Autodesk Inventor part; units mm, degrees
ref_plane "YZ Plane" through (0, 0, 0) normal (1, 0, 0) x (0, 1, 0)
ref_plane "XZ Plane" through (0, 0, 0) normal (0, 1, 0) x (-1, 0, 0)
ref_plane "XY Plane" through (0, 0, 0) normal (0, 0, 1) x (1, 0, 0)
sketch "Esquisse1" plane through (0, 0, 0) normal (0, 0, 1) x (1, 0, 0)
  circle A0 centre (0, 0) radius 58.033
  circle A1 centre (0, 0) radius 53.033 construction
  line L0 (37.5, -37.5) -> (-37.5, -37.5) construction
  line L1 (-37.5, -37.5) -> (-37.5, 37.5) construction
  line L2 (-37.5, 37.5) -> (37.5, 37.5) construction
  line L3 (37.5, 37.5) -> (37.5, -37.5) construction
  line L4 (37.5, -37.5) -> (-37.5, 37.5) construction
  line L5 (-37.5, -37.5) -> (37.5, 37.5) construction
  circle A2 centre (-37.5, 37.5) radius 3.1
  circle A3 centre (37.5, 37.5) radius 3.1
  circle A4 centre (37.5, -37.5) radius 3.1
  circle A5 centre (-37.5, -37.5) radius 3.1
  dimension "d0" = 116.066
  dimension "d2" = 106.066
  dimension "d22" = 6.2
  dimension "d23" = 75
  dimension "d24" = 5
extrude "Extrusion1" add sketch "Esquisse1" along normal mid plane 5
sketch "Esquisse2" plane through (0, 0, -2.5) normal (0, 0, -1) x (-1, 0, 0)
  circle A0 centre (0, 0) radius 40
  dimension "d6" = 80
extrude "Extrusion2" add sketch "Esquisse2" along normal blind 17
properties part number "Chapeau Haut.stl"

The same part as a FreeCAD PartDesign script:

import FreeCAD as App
import Part
import Sketcher
from FreeCAD import Vector

doc = App.newDocument("Part")
params = doc.addObject("Spreadsheet::Sheet", "Params")
for row, (alias, value) in enumerate([
    ("sketch1_diameter", "6.2 mm"),
    ("pad1_length", "5 mm"),
    ("sketch2_diameter", "80 mm"),
    ("pad2_length", "17 mm"),
], start=1):
    params.set(f"A{row}", alias)
    params.set(f"B{row}", "=" + value)
    params.setAlias(f"B{row}", alias)

body = doc.addObject("PartDesign::Body", "Body")

# Sketch on XY plane
sketch1 = body.newObject("Sketcher::SketchObject", "Sketch")
sketch1.AttachmentSupport = (doc.getObject("XY_Plane"), [""])
sketch1.MapMode = "FlatFace"
sketch1.addGeometry(Part.Circle(Vector(0, 0, 0), Vector(0, 0, 1), 58), False)
sketch1.addGeometry(Part.Circle(Vector(-37.5, -37.5, 0), Vector(0, 0, 1), 3.1), False)
sketch1.addGeometry(Part.Circle(Vector(37.5, -37.5, 0), Vector(0, 0, 1), 3.1), False)
sketch1.addGeometry(Part.Circle(Vector(-37.5, 37.5, 0), Vector(0, 0, 1), 3.1), False)
sketch1.addGeometry(Part.Circle(Vector(37.5, 37.5, 0), Vector(0, 0, 1), 3.1), False)
sketch1.addConstraint(Sketcher.Constraint("Coincident", 0, 3, -1, 1))
sketch1.addConstraint(Sketcher.Constraint("Equal", 1, 2))
sketch1.addConstraint(Sketcher.Constraint("Equal", 2, 3))
sketch1.addConstraint(Sketcher.Constraint("Equal", 3, 4))
sketch1.addConstraint(Sketcher.Constraint("Symmetric", 2, 3, 3, 3, -1, 1))
sketch1.addConstraint(Sketcher.Constraint("Symmetric", 1, 3, 4, 3, -1, 1))
sketch1.addConstraint(Sketcher.Constraint("Symmetric", 1, 3, 2, 3, -2))
sketch1.addConstraint(Sketcher.Constraint("Diameter", 1, 6.2))
sketch1.addConstraint(Sketcher.Constraint("Diameter", 0, 116.066))
sketch1.addConstraint(Sketcher.Constraint("DistanceX", 1, 3, 2, 3, 75.0))
sketch1.addConstraint(Sketcher.Constraint("DistanceY", 1, 3, 3, 3, 75.0))
sketch1.setExpression("Constraints[7]", "Params.sketch1_diameter")
pad1 = body.newObject("PartDesign::Pad", "Pad")
pad1.Profile = sketch1
pad1.setExpression("Length", "Params.pad1_length")
pad1.Midplane = True

# Sketch on XY plane
sketch2 = body.newObject("Sketcher::SketchObject", "Sketch001")
sketch2.AttachmentSupport = (doc.getObject("XY_Plane"), [""])
sketch2.MapMode = "FlatFace"
sketch2.AttachmentOffset = App.Placement(Vector(0, 0, -2.5), App.Rotation())
sketch2.addGeometry(Part.Circle(Vector(0, 0, 0), Vector(0, 0, 1), 40), False)
sketch2.addConstraint(Sketcher.Constraint("Coincident", 0, 3, -1, 1))
sketch2.addConstraint(Sketcher.Constraint("Diameter", 0, 80.0))
sketch2.setExpression("Constraints[1]", "Params.sketch2_diameter")
pad2 = body.newObject("PartDesign::Pad", "Pad001")
pad2.Profile = sketch2
pad2.setExpression("Length", "Params.pad2_length")
pad2.Reversed = True

doc.recompute()
